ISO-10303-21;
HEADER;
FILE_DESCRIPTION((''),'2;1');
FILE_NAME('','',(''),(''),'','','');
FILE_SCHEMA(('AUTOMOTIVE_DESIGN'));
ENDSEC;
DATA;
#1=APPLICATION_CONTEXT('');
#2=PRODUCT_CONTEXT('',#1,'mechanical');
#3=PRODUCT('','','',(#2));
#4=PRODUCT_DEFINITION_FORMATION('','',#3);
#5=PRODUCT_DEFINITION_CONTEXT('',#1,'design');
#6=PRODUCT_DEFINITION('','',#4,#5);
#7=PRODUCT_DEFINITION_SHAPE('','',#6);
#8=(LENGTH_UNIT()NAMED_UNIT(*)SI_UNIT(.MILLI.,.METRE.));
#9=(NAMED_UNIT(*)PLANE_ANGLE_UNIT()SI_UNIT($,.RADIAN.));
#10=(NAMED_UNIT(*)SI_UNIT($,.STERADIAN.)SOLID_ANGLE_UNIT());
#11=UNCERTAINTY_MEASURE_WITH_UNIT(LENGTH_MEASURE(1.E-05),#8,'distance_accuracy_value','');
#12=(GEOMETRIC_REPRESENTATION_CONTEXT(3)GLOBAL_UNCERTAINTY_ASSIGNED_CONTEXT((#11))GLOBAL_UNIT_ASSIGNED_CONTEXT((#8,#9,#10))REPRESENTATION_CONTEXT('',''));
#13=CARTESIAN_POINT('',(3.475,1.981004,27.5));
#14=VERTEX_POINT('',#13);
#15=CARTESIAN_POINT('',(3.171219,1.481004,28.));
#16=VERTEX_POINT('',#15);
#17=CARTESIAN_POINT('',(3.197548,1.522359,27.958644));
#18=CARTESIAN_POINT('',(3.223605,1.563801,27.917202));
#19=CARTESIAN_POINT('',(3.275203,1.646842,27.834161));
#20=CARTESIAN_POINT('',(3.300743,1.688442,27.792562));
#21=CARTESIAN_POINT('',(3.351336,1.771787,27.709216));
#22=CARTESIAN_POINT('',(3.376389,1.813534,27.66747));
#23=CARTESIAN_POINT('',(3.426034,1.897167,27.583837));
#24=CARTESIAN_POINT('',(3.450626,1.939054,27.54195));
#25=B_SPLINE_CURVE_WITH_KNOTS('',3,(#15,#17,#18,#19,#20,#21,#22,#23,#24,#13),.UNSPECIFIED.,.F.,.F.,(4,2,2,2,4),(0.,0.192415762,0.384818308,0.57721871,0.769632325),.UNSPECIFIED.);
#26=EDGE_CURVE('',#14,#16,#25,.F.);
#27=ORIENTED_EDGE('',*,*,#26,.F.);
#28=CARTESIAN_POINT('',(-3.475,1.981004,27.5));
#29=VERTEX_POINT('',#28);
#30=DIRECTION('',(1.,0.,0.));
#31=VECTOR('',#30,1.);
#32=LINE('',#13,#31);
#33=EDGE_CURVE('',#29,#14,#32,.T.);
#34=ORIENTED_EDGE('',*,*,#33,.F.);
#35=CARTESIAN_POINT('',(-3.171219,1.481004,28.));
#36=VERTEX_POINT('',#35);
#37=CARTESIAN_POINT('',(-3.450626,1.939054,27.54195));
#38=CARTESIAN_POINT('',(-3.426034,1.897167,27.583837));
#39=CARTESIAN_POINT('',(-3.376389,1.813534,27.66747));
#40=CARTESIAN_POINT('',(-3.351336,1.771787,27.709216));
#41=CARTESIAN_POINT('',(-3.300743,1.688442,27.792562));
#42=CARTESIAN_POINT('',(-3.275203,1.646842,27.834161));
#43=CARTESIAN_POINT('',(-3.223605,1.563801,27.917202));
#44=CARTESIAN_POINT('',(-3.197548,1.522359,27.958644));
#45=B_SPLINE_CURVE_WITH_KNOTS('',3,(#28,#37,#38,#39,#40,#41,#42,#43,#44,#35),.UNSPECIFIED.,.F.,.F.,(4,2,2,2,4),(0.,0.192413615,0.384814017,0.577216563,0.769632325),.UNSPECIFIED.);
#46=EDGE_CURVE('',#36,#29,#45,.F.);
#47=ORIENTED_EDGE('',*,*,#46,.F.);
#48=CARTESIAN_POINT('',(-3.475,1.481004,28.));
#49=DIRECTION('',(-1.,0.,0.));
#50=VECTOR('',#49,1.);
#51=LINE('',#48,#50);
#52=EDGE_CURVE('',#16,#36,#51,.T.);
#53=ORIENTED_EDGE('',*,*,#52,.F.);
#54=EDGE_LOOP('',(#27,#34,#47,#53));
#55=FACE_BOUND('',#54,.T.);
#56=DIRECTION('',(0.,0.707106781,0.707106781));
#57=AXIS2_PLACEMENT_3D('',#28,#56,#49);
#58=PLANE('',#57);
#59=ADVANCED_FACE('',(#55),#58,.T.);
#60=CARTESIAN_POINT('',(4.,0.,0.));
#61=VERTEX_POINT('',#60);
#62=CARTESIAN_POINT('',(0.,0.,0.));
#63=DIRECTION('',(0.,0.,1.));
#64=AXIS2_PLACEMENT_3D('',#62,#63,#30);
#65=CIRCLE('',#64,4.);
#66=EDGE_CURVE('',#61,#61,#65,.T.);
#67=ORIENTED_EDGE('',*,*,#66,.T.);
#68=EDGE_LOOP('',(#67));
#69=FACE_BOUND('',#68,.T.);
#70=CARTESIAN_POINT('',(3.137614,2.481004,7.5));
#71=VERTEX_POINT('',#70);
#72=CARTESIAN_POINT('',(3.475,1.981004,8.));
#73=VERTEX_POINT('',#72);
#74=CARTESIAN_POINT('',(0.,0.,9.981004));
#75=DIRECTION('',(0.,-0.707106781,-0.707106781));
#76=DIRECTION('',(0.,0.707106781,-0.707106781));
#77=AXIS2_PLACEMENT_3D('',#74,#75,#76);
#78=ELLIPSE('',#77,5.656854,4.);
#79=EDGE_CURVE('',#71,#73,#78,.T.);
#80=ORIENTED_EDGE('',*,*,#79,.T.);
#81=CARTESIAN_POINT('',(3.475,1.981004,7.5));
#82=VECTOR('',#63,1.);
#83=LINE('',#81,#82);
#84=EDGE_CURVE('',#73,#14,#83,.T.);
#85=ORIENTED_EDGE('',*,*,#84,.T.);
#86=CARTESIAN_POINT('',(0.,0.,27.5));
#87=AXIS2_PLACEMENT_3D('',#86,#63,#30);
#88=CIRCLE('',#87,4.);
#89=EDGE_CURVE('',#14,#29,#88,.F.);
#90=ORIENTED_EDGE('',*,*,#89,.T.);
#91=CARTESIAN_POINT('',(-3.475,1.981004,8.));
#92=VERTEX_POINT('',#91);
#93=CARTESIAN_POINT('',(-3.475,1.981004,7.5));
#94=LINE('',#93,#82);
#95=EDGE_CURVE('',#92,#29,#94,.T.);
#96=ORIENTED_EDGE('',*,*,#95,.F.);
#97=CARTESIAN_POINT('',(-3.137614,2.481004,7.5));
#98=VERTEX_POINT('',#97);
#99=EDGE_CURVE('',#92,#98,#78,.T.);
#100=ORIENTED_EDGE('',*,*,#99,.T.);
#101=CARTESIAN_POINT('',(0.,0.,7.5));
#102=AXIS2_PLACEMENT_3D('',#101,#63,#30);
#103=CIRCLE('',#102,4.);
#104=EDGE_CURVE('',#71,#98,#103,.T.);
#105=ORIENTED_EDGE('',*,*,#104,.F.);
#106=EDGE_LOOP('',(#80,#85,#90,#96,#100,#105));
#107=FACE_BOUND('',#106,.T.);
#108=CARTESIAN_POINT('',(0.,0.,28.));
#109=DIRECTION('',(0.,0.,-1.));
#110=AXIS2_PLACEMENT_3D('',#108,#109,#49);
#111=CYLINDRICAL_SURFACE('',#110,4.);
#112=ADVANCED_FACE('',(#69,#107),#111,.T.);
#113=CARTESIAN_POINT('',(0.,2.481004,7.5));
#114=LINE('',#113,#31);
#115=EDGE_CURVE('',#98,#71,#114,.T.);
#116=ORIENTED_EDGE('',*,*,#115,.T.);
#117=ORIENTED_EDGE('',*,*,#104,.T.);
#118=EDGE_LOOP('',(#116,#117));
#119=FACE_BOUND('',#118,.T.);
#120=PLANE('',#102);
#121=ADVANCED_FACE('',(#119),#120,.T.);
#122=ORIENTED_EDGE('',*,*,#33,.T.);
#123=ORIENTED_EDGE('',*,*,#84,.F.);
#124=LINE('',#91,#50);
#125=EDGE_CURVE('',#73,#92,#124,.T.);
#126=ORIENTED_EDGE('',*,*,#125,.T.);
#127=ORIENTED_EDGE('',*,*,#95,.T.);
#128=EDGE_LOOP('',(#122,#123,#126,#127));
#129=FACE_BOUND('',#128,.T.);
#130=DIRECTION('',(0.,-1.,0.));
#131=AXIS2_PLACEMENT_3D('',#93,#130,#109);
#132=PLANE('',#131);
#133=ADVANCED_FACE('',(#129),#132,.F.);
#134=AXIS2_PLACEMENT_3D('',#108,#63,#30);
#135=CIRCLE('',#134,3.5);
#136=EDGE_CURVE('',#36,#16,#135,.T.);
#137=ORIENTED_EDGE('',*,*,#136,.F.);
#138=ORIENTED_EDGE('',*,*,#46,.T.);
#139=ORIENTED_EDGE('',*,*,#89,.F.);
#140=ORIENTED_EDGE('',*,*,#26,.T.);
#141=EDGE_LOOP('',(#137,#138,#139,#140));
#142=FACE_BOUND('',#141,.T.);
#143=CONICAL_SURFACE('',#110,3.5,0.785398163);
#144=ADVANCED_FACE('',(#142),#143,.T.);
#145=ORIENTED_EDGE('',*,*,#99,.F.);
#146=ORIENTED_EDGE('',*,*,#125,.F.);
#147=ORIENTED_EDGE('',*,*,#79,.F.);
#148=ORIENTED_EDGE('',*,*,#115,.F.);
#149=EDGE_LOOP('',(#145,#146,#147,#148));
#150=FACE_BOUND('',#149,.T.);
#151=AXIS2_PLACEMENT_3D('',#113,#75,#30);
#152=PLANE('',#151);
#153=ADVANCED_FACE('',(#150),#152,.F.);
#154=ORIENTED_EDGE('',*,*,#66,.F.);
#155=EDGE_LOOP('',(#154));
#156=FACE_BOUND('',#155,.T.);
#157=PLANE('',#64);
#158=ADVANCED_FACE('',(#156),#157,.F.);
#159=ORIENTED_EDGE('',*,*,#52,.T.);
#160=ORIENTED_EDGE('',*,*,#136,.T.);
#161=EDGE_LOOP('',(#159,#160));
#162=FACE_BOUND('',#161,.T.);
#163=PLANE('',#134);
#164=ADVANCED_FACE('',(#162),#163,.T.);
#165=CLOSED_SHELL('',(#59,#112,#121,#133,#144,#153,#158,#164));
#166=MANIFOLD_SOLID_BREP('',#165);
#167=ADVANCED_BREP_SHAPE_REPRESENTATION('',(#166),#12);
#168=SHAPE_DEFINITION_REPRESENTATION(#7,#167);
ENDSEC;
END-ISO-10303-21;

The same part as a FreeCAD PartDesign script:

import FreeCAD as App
import Part
import Sketcher

V = App.Vector


def edges_at(feature, points):
    """Names of the edges that pass closest to the given points."""
    edges = feature.Shape.Edges
    near = lambda p: min(range(len(edges)), key=lambda i: edges[i].distToShape(Part.Vertex(*p))[0])
    return sorted({f"Edge{near(p) + 1}" for p in points})

doc = App.newDocument("Part")
body = doc.addObject("PartDesign::Body", "Body")

# Sketch on XY plane
sketch1 = body.newObject("Sketcher::SketchObject", "Sketch")
sketch1.AttachmentSupport = (doc.getObject("XY_Plane"), [""])
sketch1.MapMode = "FlatFace"
sketch1.addGeometry(Part.Circle(V(0, 0, 0), V(0, 0, 1), 4), False)
sketch1.addConstraint(Sketcher.Constraint("Coincident", 0, 3, -1, 1))
sketch1.addConstraint(Sketcher.Constraint("Diameter", 0, 8.0))
pad1 = body.newObject("PartDesign::Pad", "Pad")
pad1.Profile = sketch1
pad1.Length = 28

# Sketch on XY plane
sketch2 = body.newObject("Sketcher::SketchObject", "Sketch001")
sketch2.AttachmentSupport = (doc.getObject("XY_Plane"), [""])
sketch2.MapMode = "FlatFace"
sketch2.AttachmentOffset = App.Placement(V(0, 0, 28), App.Rotation())
sketch2.addGeometry(Part.LineSegment(V(-3.5, 2, 0), V(3.5, 2, 0)), False)
sketch2.addGeometry(Part.LineSegment(V(3.5, 2, 0), V(3.5, 4, 0)), False)
sketch2.addGeometry(Part.LineSegment(V(3.5, 4, 0), V(-3.5, 4, 0)), False)
sketch2.addGeometry(Part.LineSegment(V(-3.5, 4, 0), V(-3.5, 2, 0)), False)
sketch2.addConstraint(Sketcher.Constraint("Coincident", 0, 2, 1, 1))
sketch2.addConstraint(Sketcher.Constraint("Coincident", 1, 2, 2, 1))
sketch2.addConstraint(Sketcher.Constraint("Coincident", 2, 2, 3, 1))
sketch2.addConstraint(Sketcher.Constraint("Coincident", 3, 2, 0, 1))
sketch2.addConstraint(Sketcher.Constraint("Horizontal", 0))
sketch2.addConstraint(Sketcher.Constraint("Vertical", 1))
sketch2.addConstraint(Sketcher.Constraint("Horizontal", 2))
sketch2.addConstraint(Sketcher.Constraint("Vertical", 3))
sketch2.addConstraint(Sketcher.Constraint("DistanceY", -1, 1, 1, 2, 4.0))
sketch2.addConstraint(Sketcher.Constraint("DistanceX", 0, 1, 0, 2, 6.95))
sketch2.addConstraint(Sketcher.Constraint("DistanceX", -1, 1, 0, 2, 3.475))
sketch2.addConstraint(Sketcher.Constraint("DistanceY", 1, 1, 1, 2, 2.018996))
pocket1 = body.newObject("PartDesign::Pocket", "Pocket")
pocket1.Profile = sketch2
pocket1.Length = 20.5
doc.recompute()

chamfer = body.newObject("PartDesign::Chamfer", "Chamfer")
chamfer.Base = (pocket1, edges_at(pocket1, [(0, 1.981, 7.5), (-1.025, -3.867, 28), (0, 1.981, 28)]))
chamfer.Size = 0.5

doc.recompute()
